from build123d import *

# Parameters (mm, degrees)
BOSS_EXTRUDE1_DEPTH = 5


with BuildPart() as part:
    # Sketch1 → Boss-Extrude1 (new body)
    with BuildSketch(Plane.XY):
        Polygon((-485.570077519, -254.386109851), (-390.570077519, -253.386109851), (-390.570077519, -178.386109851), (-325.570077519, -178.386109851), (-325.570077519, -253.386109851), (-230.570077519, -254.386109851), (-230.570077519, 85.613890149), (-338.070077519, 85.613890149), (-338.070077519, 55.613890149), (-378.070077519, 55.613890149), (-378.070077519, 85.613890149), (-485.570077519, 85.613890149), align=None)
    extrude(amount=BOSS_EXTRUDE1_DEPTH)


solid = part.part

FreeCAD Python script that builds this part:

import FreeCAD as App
import Part
import Sketcher
from FreeCAD import Vector
Q = App.Units.Quantity


def add_polygon(sketch, points):
    """Adds a closed chain of lines whose ends are joined by coincident constraints."""
    first, n = sketch.GeometryCount, len(points)
    for a, b in zip(points, points[1:] + points[:1]):
        sketch.addGeometry(Part.LineSegment(App.Vector(*a, 0), App.Vector(*b, 0)), False)
    for i in range(n):
        sketch.addConstraint(Sketcher.Constraint("Coincident", first + i, 2, first + (i + 1) % n, 1))

doc = App.newDocument("Part")
params = doc.addObject("Spreadsheet::Sheet", "Params")
for row, (alias, value) in enumerate([
    ("sketch1_width", "65 mm"),
    ("sketch1_width2", "40 mm"),
    ("sketch1_height", "75 mm"),
    ("sketch1_height2", "340 mm"),
    ("sketch1_height3", "30 mm"),
    ("pad1_length", "5 mm"),
], start=1):
    params.set(f"A{row}", alias)
    params.set(f"B{row}", "=" + value)
    params.setAlias(f"B{row}", alias)

body = doc.addObject("PartDesign::Body", "Body")

sketch1 = doc.addObject("Sketcher::SketchObject", "Sketch")
body.addObject(sketch1)
sketch1.AttachmentSupport = (doc.XY_Plane, [""])
sketch1.MapMode = "FlatFace"
add_polygon(sketch1, [(-485.570078, -254.38611), (-390.570078, -253.38611), (-390.570078, -178.38611), (-325.570078, -178.38611), (-325.570078, -253.38611), (-230.570078, -254.38611), (-230.570078, 85.61389), (-338.070078, 85.61389), (-338.070078, 55.61389), (-378.070078, 55.61389), (-378.070078, 85.61389), (-485.570078, 85.61389)])
sketch1.addConstraint(Sketcher.Constraint("Vertical", 1))
sketch1.addConstraint(Sketcher.Constraint("Horizontal", 2))
sketch1.addConstraint(Sketcher.Constraint("Vertical", 3))
sketch1.addConstraint(Sketcher.Constraint("Vertical", 5))
sketch1.addConstraint(Sketcher.Constraint("Horizontal", 6))
sketch1.addConstraint(Sketcher.Constraint("Vertical", 7))
sketch1.addConstraint(Sketcher.Constraint("Horizontal", 8))
sketch1.addConstraint(Sketcher.Constraint("Vertical", 9))
sketch1.addConstraint(Sketcher.Constraint("Horizontal", 10))
sketch1.addConstraint(Sketcher.Constraint("Vertical", 11))
sketch1.addConstraint(Sketcher.Constraint("Horizontal", 0, 2, 3, 2))
sketch1.addConstraint(Sketcher.Constraint("Horizontal", 6, 2, 9, 2))
sketch1.addConstraint(Sketcher.Constraint("Horizontal", 4, 2, 11, 2))
sketch1.addConstraint(Sketcher.Constraint("Equal", 6, 10))
sketch1.addConstraint(Sketcher.Constraint("Equal", 0, 4))
sketch1.addConstraint(Sketcher.Constraint("DistanceX", 2, 1, 2, 2, Q("65 mm")))
sketch1.addConstraint(Sketcher.Constraint("DistanceX", 8, 2, 8, 1, Q("40 mm")))
sketch1.addConstraint(Sketcher.Constraint("DistanceY", 1, 1, 1, 2, Q("75 mm")))
sketch1.addConstraint(Sketcher.Constraint("DistanceY", 5, 1, 5, 2, Q("340 mm")))
sketch1.addConstraint(Sketcher.Constraint("DistanceY", 7, 2, 7, 1, Q("30 mm")))
sketch1.addConstraint(Sketcher.Constraint("DistanceX", 6, 2, 6, 1, Q("107.5 mm")))
sketch1.addConstraint(Sketcher.Constraint("DistanceY", 4, 2, 3, 2, Q("1 mm")))
sketch1.addConstraint(Sketcher.Constraint("DistanceY", 0, 2, -1, 1, Q("253.38611 mm")))
sketch1.addConstraint(Sketcher.Constraint("DistanceX", 0, 2, -1, 1, Q("390.570078 mm")))
sketch1.setExpression("Constraints[27]", "Params.sketch1_width")
sketch1.setExpression("Constraints[28]", "Params.sketch1_width2")
sketch1.setExpression("Constraints[29]", "Params.sketch1_height")
sketch1.setExpression("Constraints[30]", "Params.sketch1_height2")
sketch1.setExpression("Constraints[31]", "Params.sketch1_height3")
pad1 = doc.addObject("PartDesign::Pad", "Pad")
body.addObject(pad1)
pad1.Profile = sketch1
pad1.setExpression("Length", "Params.pad1_length")

doc.recompute()
